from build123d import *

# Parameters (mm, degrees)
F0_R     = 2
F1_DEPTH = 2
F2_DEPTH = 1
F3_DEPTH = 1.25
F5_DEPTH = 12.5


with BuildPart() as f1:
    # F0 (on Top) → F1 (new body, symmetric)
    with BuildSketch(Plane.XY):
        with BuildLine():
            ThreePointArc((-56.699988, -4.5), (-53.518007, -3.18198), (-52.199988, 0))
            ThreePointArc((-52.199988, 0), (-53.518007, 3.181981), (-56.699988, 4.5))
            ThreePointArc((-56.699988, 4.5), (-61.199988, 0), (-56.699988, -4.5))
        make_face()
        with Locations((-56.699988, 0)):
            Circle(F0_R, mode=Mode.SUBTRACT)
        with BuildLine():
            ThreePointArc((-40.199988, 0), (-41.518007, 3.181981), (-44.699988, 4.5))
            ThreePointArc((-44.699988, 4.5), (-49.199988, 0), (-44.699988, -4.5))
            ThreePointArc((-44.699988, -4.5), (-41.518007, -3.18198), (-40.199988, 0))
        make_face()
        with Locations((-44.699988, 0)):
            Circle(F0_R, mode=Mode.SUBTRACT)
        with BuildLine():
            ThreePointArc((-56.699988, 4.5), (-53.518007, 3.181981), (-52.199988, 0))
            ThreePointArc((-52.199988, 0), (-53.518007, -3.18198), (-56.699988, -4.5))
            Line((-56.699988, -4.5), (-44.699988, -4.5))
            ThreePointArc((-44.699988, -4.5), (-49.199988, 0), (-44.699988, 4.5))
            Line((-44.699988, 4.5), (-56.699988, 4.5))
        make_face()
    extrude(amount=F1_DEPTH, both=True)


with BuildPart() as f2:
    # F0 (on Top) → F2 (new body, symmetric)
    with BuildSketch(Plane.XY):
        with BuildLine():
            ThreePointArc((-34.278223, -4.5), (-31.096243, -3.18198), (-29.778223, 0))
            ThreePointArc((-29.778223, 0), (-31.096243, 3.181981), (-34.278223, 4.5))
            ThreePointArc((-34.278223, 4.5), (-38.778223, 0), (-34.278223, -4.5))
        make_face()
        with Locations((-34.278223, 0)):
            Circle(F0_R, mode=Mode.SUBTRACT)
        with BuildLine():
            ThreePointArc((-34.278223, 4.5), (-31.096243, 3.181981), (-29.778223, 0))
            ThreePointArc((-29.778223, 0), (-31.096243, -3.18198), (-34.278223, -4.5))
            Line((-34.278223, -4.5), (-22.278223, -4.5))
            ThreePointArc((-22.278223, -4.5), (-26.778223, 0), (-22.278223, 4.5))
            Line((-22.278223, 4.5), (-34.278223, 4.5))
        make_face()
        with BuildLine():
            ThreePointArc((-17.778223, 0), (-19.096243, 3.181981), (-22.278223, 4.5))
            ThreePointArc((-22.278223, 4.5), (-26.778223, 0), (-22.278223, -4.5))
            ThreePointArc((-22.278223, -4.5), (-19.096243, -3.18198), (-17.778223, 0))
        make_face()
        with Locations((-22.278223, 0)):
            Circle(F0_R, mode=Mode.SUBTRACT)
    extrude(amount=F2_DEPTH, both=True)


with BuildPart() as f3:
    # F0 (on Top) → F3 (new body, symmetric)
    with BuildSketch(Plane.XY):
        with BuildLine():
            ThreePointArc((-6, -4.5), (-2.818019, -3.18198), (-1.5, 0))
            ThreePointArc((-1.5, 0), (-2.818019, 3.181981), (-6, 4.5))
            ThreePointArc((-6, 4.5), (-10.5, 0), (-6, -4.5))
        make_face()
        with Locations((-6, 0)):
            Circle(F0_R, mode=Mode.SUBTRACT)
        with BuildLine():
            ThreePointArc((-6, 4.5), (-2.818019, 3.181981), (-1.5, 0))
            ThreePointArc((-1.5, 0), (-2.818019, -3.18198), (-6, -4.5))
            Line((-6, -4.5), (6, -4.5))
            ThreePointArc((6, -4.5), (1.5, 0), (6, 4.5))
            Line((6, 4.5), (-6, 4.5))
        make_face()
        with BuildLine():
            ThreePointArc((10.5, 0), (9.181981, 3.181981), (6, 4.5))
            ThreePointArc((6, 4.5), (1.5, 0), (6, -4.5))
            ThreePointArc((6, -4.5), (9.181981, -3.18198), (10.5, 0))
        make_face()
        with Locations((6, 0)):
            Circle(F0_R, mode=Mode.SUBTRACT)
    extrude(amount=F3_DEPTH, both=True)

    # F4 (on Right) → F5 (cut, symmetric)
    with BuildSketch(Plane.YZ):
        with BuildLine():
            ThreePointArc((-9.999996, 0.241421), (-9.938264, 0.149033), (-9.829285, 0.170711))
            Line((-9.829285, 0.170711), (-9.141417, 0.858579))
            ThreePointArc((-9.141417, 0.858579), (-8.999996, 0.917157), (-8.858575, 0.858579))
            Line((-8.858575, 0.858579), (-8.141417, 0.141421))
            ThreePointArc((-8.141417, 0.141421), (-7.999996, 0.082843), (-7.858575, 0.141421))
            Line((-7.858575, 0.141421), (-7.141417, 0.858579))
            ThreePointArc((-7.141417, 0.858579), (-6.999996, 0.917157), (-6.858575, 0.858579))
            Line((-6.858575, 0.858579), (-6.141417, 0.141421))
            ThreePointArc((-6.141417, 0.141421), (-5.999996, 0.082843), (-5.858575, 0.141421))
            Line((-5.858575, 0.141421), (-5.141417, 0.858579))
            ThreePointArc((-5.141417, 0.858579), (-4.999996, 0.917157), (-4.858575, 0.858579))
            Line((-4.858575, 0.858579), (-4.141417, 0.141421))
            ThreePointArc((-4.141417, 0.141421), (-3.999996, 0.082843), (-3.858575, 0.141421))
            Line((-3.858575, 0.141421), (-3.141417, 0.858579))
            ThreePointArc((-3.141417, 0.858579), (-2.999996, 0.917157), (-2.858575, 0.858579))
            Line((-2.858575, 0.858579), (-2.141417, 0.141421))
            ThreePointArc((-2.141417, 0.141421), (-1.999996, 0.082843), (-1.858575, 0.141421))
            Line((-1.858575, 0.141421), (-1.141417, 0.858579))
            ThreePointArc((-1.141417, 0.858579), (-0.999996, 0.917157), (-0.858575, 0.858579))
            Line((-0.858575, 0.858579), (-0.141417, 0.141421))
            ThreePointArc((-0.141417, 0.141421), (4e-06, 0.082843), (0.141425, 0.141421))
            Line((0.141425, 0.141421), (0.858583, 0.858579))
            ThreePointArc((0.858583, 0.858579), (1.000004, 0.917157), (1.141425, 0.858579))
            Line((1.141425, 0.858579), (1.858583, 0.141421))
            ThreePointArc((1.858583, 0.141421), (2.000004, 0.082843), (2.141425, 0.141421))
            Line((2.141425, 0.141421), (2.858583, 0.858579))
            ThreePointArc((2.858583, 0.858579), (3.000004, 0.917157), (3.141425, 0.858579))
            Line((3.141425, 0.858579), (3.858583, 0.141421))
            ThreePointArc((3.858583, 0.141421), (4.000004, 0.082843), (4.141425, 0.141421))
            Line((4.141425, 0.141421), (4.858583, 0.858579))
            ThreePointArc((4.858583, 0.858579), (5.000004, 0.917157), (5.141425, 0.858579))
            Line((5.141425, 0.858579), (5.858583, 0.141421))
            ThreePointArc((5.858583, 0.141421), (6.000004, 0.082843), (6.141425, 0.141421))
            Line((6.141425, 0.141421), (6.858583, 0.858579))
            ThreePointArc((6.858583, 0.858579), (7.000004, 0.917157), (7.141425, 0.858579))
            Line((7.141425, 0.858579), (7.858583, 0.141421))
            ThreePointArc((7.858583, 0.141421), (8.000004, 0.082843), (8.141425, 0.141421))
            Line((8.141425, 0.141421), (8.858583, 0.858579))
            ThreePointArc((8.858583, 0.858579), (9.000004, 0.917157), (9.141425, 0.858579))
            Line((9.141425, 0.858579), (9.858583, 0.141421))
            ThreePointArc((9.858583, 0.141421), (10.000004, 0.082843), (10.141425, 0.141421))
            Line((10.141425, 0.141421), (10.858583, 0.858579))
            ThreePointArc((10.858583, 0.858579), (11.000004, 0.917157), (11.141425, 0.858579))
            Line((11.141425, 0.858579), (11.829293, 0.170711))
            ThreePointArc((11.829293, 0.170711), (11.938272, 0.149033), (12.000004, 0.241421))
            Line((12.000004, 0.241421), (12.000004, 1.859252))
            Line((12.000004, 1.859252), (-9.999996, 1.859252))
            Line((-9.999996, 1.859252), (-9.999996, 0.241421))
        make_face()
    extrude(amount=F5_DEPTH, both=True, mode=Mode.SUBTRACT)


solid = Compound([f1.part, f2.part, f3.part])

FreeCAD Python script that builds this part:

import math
import FreeCAD as App
import Part
import Sketcher

V = App.Vector
Q = App.Units.Quantity

doc = App.newDocument("Part")
params = doc.addObject("Spreadsheet::Sheet", "Params")
for row, (alias, value) in enumerate([
    ("sketch1_diameter", "4 mm"),
    ("sketch1_radius", "4.5 mm"),
    ("sketch1_width", "12 mm"),
    ("pad1_length", "4 mm"),
    ("sketch2_diameter", "4 mm"),
    ("sketch2_radius", "4.5 mm"),
    ("sketch2_width", "12 mm"),
    ("pad2_length", "2 mm"),
    ("sketch3_diameter", "4 mm"),
    ("sketch3_radius", "4.5 mm"),
    ("sketch3_width", "12 mm"),
    ("pad3_length", "2.5 mm"),
    ("sketch4_radius", "0.1 mm"),
    ("sketch4_radius2", "0.200001 mm"),
    ("sketch4_radius3", "0.200001 mm"),
    ("sketch4_radius4", "0.200001 mm"),
    ("sketch4_radius5", "0.200001 mm"),
    ("pocket1_length", "25 mm"),
], start=1):
    params.set(f"A{row}", alias)
    params.set(f"B{row}", "=" + value)
    params.setAlias(f"B{row}", alias)

body = doc.addObject("PartDesign::Body", "Body")

# Sketch on XY plane
sketch1 = body.newObject("Sketcher::SketchObject", "Sketch")
sketch1.AttachmentSupport = (doc.getObject("XY_Plane"), [""])
sketch1.MapMode = "FlatFace"
sketch1.addGeometry([
    Part.ArcOfCircle(Part.Circle(V(-56.699988, 0, 0), V(0, 0, 1), 4.5), math.radians(90), math.radians(270)),  # 0
    Part.LineSegment(V(-56.699988, -4.5, 0), V(-44.699988, -4.5, 0)),  # 1
    Part.ArcOfCircle(Part.Circle(V(-44.699988, 0, 0), V(0, 0, 1), 4.5), math.radians(-89.999999), math.radians(-0.000001)),  # 2
    Part.ArcOfCircle(Part.Circle(V(-44.699986, 0.000002, 0), V(0, 0, 1), 4.499998), math.radians(-0.000021), math.radians(90.000021)),  # 3
    Part.LineSegment(V(-44.699988, 4.5, 0), V(-56.699988, 4.5, 0)),  # 4
    Part.Circle(V(-56.699988, 0, 0), V(0, 0, 1), 2),  # 5
    Part.Circle(V(-44.699988, 0, 0), V(0, 0, 1), 2),  # 6
], False)
sketch1.addConstraint([
    Sketcher.Constraint("Tangent", 0, 2, 1, 1),
    Sketcher.Constraint("Tangent", 1, 2, 2, 1),
    Sketcher.Constraint("Tangent", 2, 2, 3, 1),
    Sketcher.Constraint("Tangent", 3, 2, 4, 1),
    Sketcher.Constraint("Tangent", 4, 2, 0, 1),
    Sketcher.Constraint("Horizontal", 1),
    Sketcher.Constraint("Horizontal", 4),
    Sketcher.Constraint("Coincident", 5, 3, 0, 3),
    Sketcher.Constraint("Coincident", 6, 3, 2, 3),
    Sketcher.Constraint("Equal", 0, 2),
    Sketcher.Constraint("Equal", 5, 6),
    Sketcher.Constraint("PointOnObject", 0, 3, -1),
    Sketcher.Constraint("PointOnObject", 2, 2, -1),
    Sketcher.Constraint("Diameter", 5, Q("4 mm")),
    Sketcher.Constraint("Radius", 0, Q("4.5 mm")),
    Sketcher.Constraint("DistanceX", 1, 1, 1, 2, Q("12 mm")),
    Sketcher.Constraint("DistanceX", 2, 3, -1, 1, Q("44.699988 mm")),
])
sketch1.setExpression("Constraints[13]", "Params.sketch1_diameter")
sketch1.setExpression("Constraints[14]", "Params.sketch1_radius")
sketch1.setExpression("Constraints[15]", "Params.sketch1_width")
pad1 = body.newObject("PartDesign::Pad", "Pad")
pad1.Profile = sketch1
pad1.setExpression("Length", "Params.pad1_length")
pad1.Midplane = True
body2 = doc.addObject("PartDesign::Body", "Body001")

# Sketch on XY plane
sketch2 = body2.newObject("Sketcher::SketchObject", "Sketch001")
sketch2.AttachmentSupport = (doc.getObject("XY_Plane001"), [""])
sketch2.MapMode = "FlatFace"
sketch2.addGeometry([
    Part.ArcOfCircle(Part.Circle(V(-34.278223, 0, 0), V(0, 0, 1), 4.5), math.radians(90), math.radians(270)),  # 0
    Part.LineSegment(V(-34.278223, -4.5, 0), V(-22.278223, -4.5, 0)),  # 1
    Part.ArcOfCircle(Part.Circle(V(-22.278225, 0.000002, 0), V(0, 0, 1), 4.500002), math.radians(-89.999978), math.radians(-0.000022)),  # 2
    Part.ArcOfCircle(Part.Circle(V(-22.278223, 0, 0), V(0, 0, 1), 4.5), math.radians(0.000001), math.radians(89.999999)),  # 3
    Part.LineSegment(V(-22.278223, 4.5, 0), V(-34.278223, 4.5, 0)),  # 4
    Part.Circle(V(-34.278223, 0, 0), V(0, 0, 1), 2),  # 5
    Part.Circle(V(-22.278223, 0, 0), V(0, 0, 1), 2),  # 6
], False)
sketch2.addConstraint([
    Sketcher.Constraint("Tangent", 0, 2, 1, 1),
    Sketcher.Constraint("Tangent", 1, 2, 2, 1),
    Sketcher.Constraint("Tangent", 2, 2, 3, 1),
    Sketcher.Constraint("Tangent", 3, 2, 4, 1),
    Sketcher.Constraint("Tangent", 4, 2, 0, 1),
    Sketcher.Constraint("Horizontal", 1),
    Sketcher.Constraint("Horizontal", 4),
    Sketcher.Constraint("Coincident", 5, 3, 0, 3),
    Sketcher.Constraint("Coincident", 6, 3, 2, 3),
    Sketcher.Constraint("Equal", 0, 2),
    Sketcher.Constraint("Equal", 5, 6),
    Sketcher.Constraint("PointOnObject", 0, 3, -1),
    Sketcher.Constraint("PointOnObject", 2, 2, -1),
    Sketcher.Constraint("Diameter", 5, Q("4 mm")),
    Sketcher.Constraint("Radius", 0, Q("4.5 mm")),
    Sketcher.Constraint("DistanceX", 1, 1, 1, 2, Q("12 mm")),
    Sketcher.Constraint("DistanceX", 0, 3, -1, 1, Q("34.278223 mm")),
])
sketch2.setExpression("Constraints[13]", "Params.sketch2_diameter")
sketch2.setExpression("Constraints[14]", "Params.sketch2_radius")
sketch2.setExpression("Constraints[15]", "Params.sketch2_width")
pad2 = body2.newObject("PartDesign::Pad", "Pad001")
pad2.Profile = sketch2
pad2.setExpression("Length", "Params.pad2_length")
pad2.Midplane = True
body3 = doc.addObject("PartDesign::Body", "Body002")

# Sketch on XY plane
sketch3 = body3.newObject("Sketcher::SketchObject", "Sketch002")
sketch3.AttachmentSupport = (doc.getObject("XY_Plane002"), [""])
sketch3.MapMode = "FlatFace"
sketch3.addGeometry([
    Part.ArcOfCircle(Part.Circle(V(-6, 0, 0), V(0, 0, 1), 4.5), math.radians(90), math.radians(270)),  # 0
    Part.LineSegment(V(-6, -4.5, 0), V(6, -4.5, 0)),  # 1
    Part.ArcOfCircle(Part.Circle(V(6, 0, 0), V(0, 0, 1), 4.5), math.radians(-89.999999), math.radians(-0.000001)),  # 2
    Part.ArcOfCircle(Part.Circle(V(6.000002, 0.000002, 0), V(0, 0, 1), 4.499998), math.radians(-0.000021), math.radians(90.000021)),  # 3
    Part.LineSegment(V(6, 4.5, 0), V(-6, 4.5, 0)),  # 4
    Part.Circle(V(-6, 0, 0), V(0, 0, 1), 2),  # 5
    Part.Circle(V(6, 0, 0), V(0, 0, 1), 2),  # 6
], False)
sketch3.addConstraint([
    Sketcher.Constraint("Tangent", 0, 2, 1, 1),
    Sketcher.Constraint("Tangent", 1, 2, 2, 1),
    Sketcher.Constraint("Tangent", 2, 2, 3, 1),
    Sketcher.Constraint("Tangent", 3, 2, 4, 1),
    Sketcher.Constraint("Tangent", 4, 2, 0, 1),
    Sketcher.Constraint("Horizontal", 1),
    Sketcher.Constraint("Horizontal", 4),
    Sketcher.Constraint("Coincident", 5, 3, 0, 3),
    Sketcher.Constraint("Coincident", 6, 3, 2, 3),
    Sketcher.Constraint("Equal", 0, 2),
    Sketcher.Constraint("Equal", 5, 6),
    Sketcher.Constraint("Symmetric", 0, 3, 2, 3, -1, 1),
    Sketcher.Constraint("PointOnObject", 2, 2, -1),
    Sketcher.Constraint("Diameter", 5, Q("4 mm")),
    Sketcher.Constraint("Radius", 0, Q("4.5 mm")),
    Sketcher.Constraint("DistanceX", 1, 1, 1, 2, Q("12 mm")),
])
sketch3.setExpression("Constraints[13]", "Params.sketch3_diameter")
sketch3.setExpression("Constraints[14]", "Params.sketch3_radius")
sketch3.setExpression("Constraints[15]", "Params.sketch3_width")
pad3 = body3.newObject("PartDesign::Pad", "Pad002")
pad3.Profile = sketch3
pad3.setExpression("Length", "Params.pad3_length")
pad3.Midplane = True

# Sketch on YZ plane
sketch4 = body3.newObject("Sketcher::SketchObject", "Sketch003")
sketch4.AttachmentSupport = (doc.getObject("YZ_Plane002"), [""])
sketch4.MapMode = "FlatFace"
sketch4.addGeometry([
    Part.ArcOfCircle(Part.Circle(V(-9.899996, 0.241421, 0), V(0, 0, 1), 0.1), math.radians(179.999998), math.radians(315.000467)),  # 0
    Part.LineSegment(V(-9.829285, 0.170711, 0), V(-9.141417, 0.858579, 0)),  # 1
    Part.ArcOfCircle(Part.Circle(V(-8.999996, 0.717156, 0), V(0, 0, 1), 0.200001), math.radians(45.000343), math.radians(134.999657)),  # 2
    Part.LineSegment(V(-8.858575, 0.858579, 0), V(-8.141417, 0.141421, 0)),  # 3
    Part.ArcOfCircle(Part.Circle(V(-7.999996, 0.282844, 0), V(0, 0, 1), 0.200001), math.radians(-134.999657), math.radians(-45.000343)),  # 4
    Part.LineSegment(V(-7.858575, 0.141421, 0), V(-7.141417, 0.858579, 0)),  # 5
    Part.ArcOfCircle(Part.Circle(V(-6.999996, 0.717156, 0), V(0, 0, 1), 0.200001), math.radians(45.000343), math.radians(134.999657)),  # 6
    Part.LineSegment(V(-6.858575, 0.858579, 0), V(-6.141417, 0.141421, 0)),  # 7
    Part.ArcOfCircle(Part.Circle(V(-5.999996, 0.282844, 0), V(0, 0, 1), 0.200001), math.radians(-134.999657), math.radians(-45.000343)),  # 8
    Part.LineSegment(V(-5.858575, 0.141421, 0), V(-5.141417, 0.858579, 0)),  # 9
    Part.ArcOfCircle(Part.Circle(V(-4.999996, 0.717156, 0), V(0, 0, 1), 0.200001), math.radians(45.000343), math.radians(134.999657)),  # 10
    Part.LineSegment(V(-4.858575, 0.858579, 0), V(-4.141417, 0.141421, 0)),  # 11
    Part.ArcOfCircle(Part.Circle(V(-3.999996, 0.282844, 0), V(0, 0, 1), 0.200001), math.radians(-134.999657), math.radians(-45.000343)),  # 12
    Part.LineSegment(V(-3.858575, 0.141421, 0), V(-3.141417, 0.858579, 0)),  # 13
    Part.ArcOfCircle(Part.Circle(V(-2.999996, 0.717156, 0), V(0, 0, 1), 0.200001), math.radians(45.000343), math.radians(134.999657)),  # 14
    Part.LineSegment(V(-2.858575, 0.858579, 0), V(-2.141417, 0.141421, 0)),  # 15
    Part.ArcOfCircle(Part.Circle(V(-1.999996, 0.282844, 0), V(0, 0, 1), 0.200001), math.radians(-134.999657), math.radians(-45.000343)),  # 16
    Part.LineSegment(V(-1.858575, 0.141421, 0), V(-1.141417, 0.858579, 0)),  # 17
    Part.ArcOfCircle(Part.Circle(V(-0.999996, 0.717156, 0), V(0, 0, 1), 0.200001), math.radians(45.000343), math.radians(134.999657)),  # 18
    Part.LineSegment(V(-0.858575, 0.858579, 0), V(-0.141417, 0.141421, 0)),  # 19
    Part.ArcOfCircle(Part.Circle(V(0.000004, 0.282844, 0), V(0, 0, 1), 0.200001), math.radians(-134.999657), math.radians(-45.000343)),  # 20
    Part.LineSegment(V(0.141425, 0.141421, 0), V(0.858583, 0.858579, 0)),  # 21
    Part.ArcOfCircle(Part.Circle(V(1.000004, 0.717156, 0), V(0, 0, 1), 0.200001), math.radians(45.000343), math.radians(134.999657)),  # 22
    Part.LineSegment(V(1.141425, 0.858579, 0), V(1.858583, 0.141421, 0)),  # 23
    Part.ArcOfCircle(Part.Circle(V(2.000004, 0.282844, 0), V(0, 0, 1), 0.200001), math.radians(-134.999657), math.radians(-45.000343)),  # 24
    Part.LineSegment(V(2.141425, 0.141421, 0), V(2.858583, 0.858579, 0)),  # 25
    Part.ArcOfCircle(Part.Circle(V(3.000004, 0.717156, 0), V(0, 0, 1), 0.200001), math.radians(45.000343), math.radians(134.999657)),  # 26
    Part.LineSegment(V(3.141425, 0.858579, 0), V(3.858583, 0.141421, 0)),  # 27
    Part.ArcOfCircle(Part.Circle(V(4.000004, 0.282844, 0), V(0, 0, 1), 0.200001), math.radians(-134.999657), math.radians(-45.000343)),  # 28
    Part.LineSegment(V(4.141425, 0.141421, 0), V(4.858583, 0.858579, 0)),  # 29
    Part.ArcOfCircle(Part.Circle(V(5.000004, 0.717156, 0), V(0, 0, 1), 0.200001), math.radians(45.000343), math.radians(134.999657)),  # 30
    Part.LineSegment(V(5.141425, 0.858579, 0), V(5.858583, 0.141421, 0)),  # 31
    Part.ArcOfCircle(Part.Circle(V(6.000004, 0.282844, 0), V(0, 0, 1), 0.200001), math.radians(-134.999657), math.radians(-45.000343)),  # 32
    Part.LineSegment(V(6.141425, 0.141421, 0), V(6.858583, 0.858579, 0)),  # 33
    Part.ArcOfCircle(Part.Circle(V(7.000004, 0.717156, 0), V(0, 0, 1), 0.200001), math.radians(45.000343), math.radians(134.999657)),  # 34
    Part.LineSegment(V(7.141425, 0.858579, 0), V(7.858583, 0.141421, 0)),  # 35
    Part.ArcOfCircle(Part.Circle(V(8.000004, 0.282844, 0), V(0, 0, 1), 0.200001), math.radians(-134.999657), math.radians(-45.000343)),  # 36
    Part.LineSegment(V(8.141425, 0.141421, 0), V(8.858583, 0.858579, 0)),  # 37
    Part.ArcOfCircle(Part.Circle(V(9.000004, 0.717156, 0), V(0, 0, 1), 0.200001), math.radians(45.000343), math.radians(134.999657)),  # 38
    Part.LineSegment(V(9.141425, 0.858579, 0), V(9.858583, 0.141421, 0)),  # 39
    Part.ArcOfCircle(Part.Circle(V(10.000004, 0.282844, 0), V(0, 0, 1), 0.200001), math.radians(-134.999657), math.radians(-45.000343)),  # 40
    Part.LineSegment(V(10.141425, 0.141421, 0), V(10.858583, 0.858579, 0)),  # 41
    Part.ArcOfCircle(Part.Circle(V(11.000004, 0.717156, 0), V(0, 0, 1), 0.200001), math.radians(45.000343), math.radians(134.999657)),  # 42
    Part.LineSegment(V(11.141425, 0.858579, 0), V(11.829293, 0.170711, 0)),  # 43
    Part.ArcOfCircle(Part.Circle(V(11.900004, 0.241421, 0), V(0, 0, 1), 0.1), math.radians(-135.000467), math.radians(0.000002)),  # 44
    Part.LineSegment(V(12.000004, 0.241421, 0), V(12.000004, 1.859252, 0)),  # 45
    Part.LineSegment(V(12.000004, 1.859252, 0), V(-9.999996, 1.859252, 0)),  # 46
    Part.LineSegment(V(-9.999996, 1.859252, 0), V(-9.999996, 0.241421, 0)),  # 47
], False)
sketch4.addConstraint([
    Sketcher.Constraint("Coincident", 0, 2, 1, 1),
    Sketcher.Constraint("Coincident", 1, 2, 2, 2),
    Sketcher.Constraint("Coincident", 2, 1, 3, 1),
    Sketcher.Constraint("Coincident", 3, 2, 4, 1),
    Sketcher.Constraint("Coincident", 4, 2, 5, 1),
    Sketcher.Constraint("Coincident", 5, 2, 6, 2),
    Sketcher.Constraint("Coincident", 6, 1, 7, 1),
    Sketcher.Constraint("Coincident", 7, 2, 8, 1),
    Sketcher.Constraint("Coincident", 8, 2, 9, 1),
    Sketcher.Constraint("Coincident", 9, 2, 10, 2),
    Sketcher.Constraint("Coincident", 10, 1, 11, 1),
    Sketcher.Constraint("Coincident", 11, 2, 12, 1),
    Sketcher.Constraint("Coincident", 12, 2, 13, 1),
    Sketcher.Constraint("Coincident", 13, 2, 14, 2),
    Sketcher.Constraint("Coincident", 14, 1, 15, 1),
    Sketcher.Constraint("Coincident", 15, 2, 16, 1),
    Sketcher.Constraint("Coincident", 16, 2, 17, 1),
    Sketcher.Constraint("Coincident", 17, 2, 18, 2),
    Sketcher.Constraint("Coincident", 18, 1, 19, 1),
    Sketcher.Constraint("Coincident", 19, 2, 20, 1),
    Sketcher.Constraint("Coincident", 20, 2, 21, 1),
    Sketcher.Constraint("Coincident", 21, 2, 22, 2),
    Sketcher.Constraint("Coincident", 22, 1, 23, 1),
    Sketcher.Constraint("Coincident", 23, 2, 24, 1),
    Sketcher.Constraint("Coincident", 24, 2, 25, 1),
    Sketcher.Constraint("Coincident", 25, 2, 26, 2),
    Sketcher.Constraint("Coincident", 26, 1, 27, 1),
    Sketcher.Constraint("Coincident", 27, 2, 28, 1),
    Sketcher.Constraint("Coincident", 28, 2, 29, 1),
    Sketcher.Constraint("Coincident", 29, 2, 30, 2),
    Sketcher.Constraint("Coincident", 30, 1, 31, 1),
    Sketcher.Constraint("Coincident", 31, 2, 32, 1),
    Sketcher.Constraint("Coincident", 32, 2, 33, 1),
    Sketcher.Constraint("Coincident", 33, 2, 34, 2),
    Sketcher.Constraint("Coincident", 34, 1, 35, 1),
    Sketcher.Constraint("Coincident", 35, 2, 36, 1),
    Sketcher.Constraint("Coincident", 36, 2, 37, 1),
    Sketcher.Constraint("Coincident", 37, 2, 38, 2),
    Sketcher.Constraint("Coincident", 38, 1, 39, 1),
    Sketcher.Constraint("Coincident", 39, 2, 40, 1),
    Sketcher.Constraint("Coincident", 40, 2, 41, 1),
    Sketcher.Constraint("Coincident", 41, 2, 42, 2),
    Sketcher.Constraint("Coincident", 42, 1, 43, 1),
    Sketcher.Constraint("Coincident", 43, 2, 44, 1),
    Sketcher.Constraint("Coincident", 44, 2, 45, 1),
    Sketcher.Constraint("Coincident", 45, 2, 46, 1),
    Sketcher.Constraint("Coincident", 46, 2, 47, 1),
    Sketcher.Constraint("Coincident", 47, 2, 0, 1),
    Sketcher.Constraint("Vertical", 45),
    Sketcher.Constraint("Horizontal", 46),
    Sketcher.Constraint("Vertical", 47),
    Sketcher.Constraint("Radius", 0, Q("0.1 mm")),
    Sketcher.Constraint("Radius", 2, Q("0.200001 mm")),
    Sketcher.Constraint("Radius", 4, Q("0.200001 mm")),
    Sketcher.Constraint("Radius", 6, Q("0.200001 mm")),
    Sketcher.Constraint("Radius", 8, Q("0.200001 mm")),
    Sketcher.Constraint("Radius", 10, Q("0.200001 mm")),
    Sketcher.Constraint("Radius", 12, Q("0.200001 mm")),
    Sketcher.Constraint("Radius", 14, Q("0.200001 mm")),
    Sketcher.Constraint("Radius", 16, Q("0.200001 mm")),
    Sketcher.Constraint("Radius", 18, Q("0.200001 mm")),
    Sketcher.Constraint("Radius", 20, Q("0.200001 mm")),
    Sketcher.Constraint("Radius", 22, Q("0.200001 mm")),
    Sketcher.Constraint("Radius", 24, Q("0.200001 mm")),
    Sketcher.Constraint("Radius", 26, Q("0.200001 mm")),
    Sketcher.Constraint("Radius", 28, Q("0.200001 mm")),
    Sketcher.Constraint("Radius", 30, Q("0.200001 mm")),
    Sketcher.Constraint("Radius", 32, Q("0.200001 mm")),
    Sketcher.Constraint("Radius", 34, Q("0.200001 mm")),
    Sketcher.Constraint("Radius", 36, Q("0.200001 mm")),
    Sketcher.Constraint("Radius", 38, Q("0.200001 mm")),
    Sketcher.Constraint("Radius", 40, Q("0.200001 mm")),
    Sketcher.Constraint("Radius", 42, Q("0.200001 mm")),
    Sketcher.Constraint("Radius", 44, Q("0.1 mm")),
    Sketcher.Constraint("DistanceX", 46, 2, 46, 1, Q("22 mm")),
    Sketcher.Constraint("DistanceY", 45, 1, 45, 2, Q("1.617831 mm")),
    Sketcher.Constraint("DistanceY", 47, 2, 47, 1, Q("1.617831 mm")),
    Sketcher.Constraint("DistanceY", -1, 1, 0, 3, Q("0.241421 mm")),
    Sketcher.Constraint("DistanceY", -1, 1, 44, 3, Q("0.241421 mm")),
    Sketcher.Constraint("DistanceY", -1, 1, 0, 2, Q("0.170711 mm")),
    Sketcher.Constraint("DistanceY", -1, 1, 1, 2, Q("0.858579 mm")),
    Sketcher.Constraint("DistanceY", -1, 1, 2, 1, Q("0.858579 mm")),
    Sketcher.Constraint("DistanceY", -1, 1, 3, 2, Q("0.141421 mm")),
    Sketcher.Constraint("DistanceY", -1, 1, 4, 2, Q("0.141421 mm")),
    Sketcher.Constraint("DistanceY", -1, 1, 5, 2, Q("0.858579 mm")),
    Sketcher.Constraint("DistanceY", -1, 1, 6, 1, Q("0.858579 mm")),
    Sketcher.Constraint("DistanceY", -1, 1, 7, 2, Q("0.141421 mm")),
    Sketcher.Constraint("DistanceY", -1, 1, 8, 2, Q("0.141421 mm")),
    Sketcher.Constraint("DistanceY", -1, 1, 9, 2, Q("0.858579 mm")),
    Sketcher.Constraint("DistanceY", -1, 1, 10, 1, Q("0.858579 mm")),
    Sketcher.Constraint("DistanceY", -1, 1, 11, 2, Q("0.141421 mm")),
    Sketcher.Constraint("DistanceY", -1, 1, 12, 2, Q("0.141421 mm")),
    Sketcher.Constraint("DistanceY", -1, 1, 13, 2, Q("0.858579 mm")),
    Sketcher.Constraint("DistanceY", -1, 1, 14, 1, Q("0.858579 mm")),
    Sketcher.Constraint("DistanceY", -1, 1, 15, 2, Q("0.141421 mm")),
    Sketcher.Constraint("DistanceY", -1, 1, 16, 2, Q("0.141421 mm")),
    Sketcher.Constraint("DistanceY", -1, 1, 17, 2, Q("0.858579 mm")),
    Sketcher.Constraint("DistanceY", -1, 1, 18, 1, Q("0.858579 mm")),
    Sketcher.Constraint("DistanceY", -1, 1, 19, 2, Q("0.141421 mm")),
    Sketcher.Constraint("DistanceY", -1, 1, 20, 2, Q("0.141421 mm")),
    Sketcher.Constraint("DistanceY", -1, 1, 21, 2, Q("0.858579 mm")),
    Sketcher.Constraint("DistanceY", -1, 1, 22, 1, Q("0.858579 mm")),
    Sketcher.Constraint("DistanceY", -1, 1, 23, 2, Q("0.141421 mm")),
    Sketcher.Constraint("DistanceY", -1, 1, 24, 2, Q("0.141421 mm")),
    Sketcher.Constraint("DistanceY", -1, 1, 25, 2, Q("0.858579 mm")),
    Sketcher.Constraint("DistanceY", -1, 1, 26, 1, Q("0.858579 mm")),
    Sketcher.Constraint("DistanceY", -1, 1, 27, 2, Q("0.141421 mm")),
    Sketcher.Constraint("DistanceY", -1, 1, 28, 2, Q("0.141421 mm")),
    Sketcher.Constraint("DistanceY", -1, 1, 29, 2, Q("0.858579 mm")),
    Sketcher.Constraint("DistanceY", -1, 1, 30, 1, Q("0.858579 mm")),
    Sketcher.Constraint("DistanceY", -1, 1, 31, 2, Q("0.141421 mm")),
    Sketcher.Constraint("DistanceY", -1, 1, 32, 2, Q("0.141421 mm")),
    Sketcher.Constraint("DistanceY", -1, 1, 33, 2, Q("0.858579 mm")),
    Sketcher.Constraint("DistanceY", -1, 1, 34, 1, Q("0.858579 mm")),
    Sketcher.Constraint("DistanceY", -1, 1, 35, 2, Q("0.141421 mm")),
    Sketcher.Constraint("DistanceY", -1, 1, 36, 2, Q("0.141421 mm")),
    Sketcher.Constraint("DistanceY", -1, 1, 37, 2, Q("0.858579 mm")),
    Sketcher.Constraint("DistanceY", -1, 1, 38, 1, Q("0.858579 mm")),
    Sketcher.Constraint("DistanceY", -1, 1, 39, 2, Q("0.141421 mm")),
    Sketcher.Constraint("DistanceY", -1, 1, 40, 2, Q("0.141421 mm")),
    Sketcher.Constraint("DistanceY", -1, 1, 41, 2, Q("0.858579 mm")),
    Sketcher.Constraint("DistanceY", -1, 1, 42, 1, Q("0.858579 mm")),
    Sketcher.Constraint("DistanceY", -1, 1, 43, 2, Q("0.170711 mm")),
    Sketcher.Constraint("DistanceY", -1, 1, 44, 2, Q("0.241421 mm")),
    Sketcher.Constraint("Distance", 1, Q("0.972792 mm")),
    Sketcher.Constraint("Distance", 3, Q("1.014215 mm")),
    Sketcher.Constraint("Distance", 5, Q("1.014215 mm")),
    Sketcher.Constraint("Distance", 7, Q("1.014215 mm")),
    Sketcher.Constraint("Distance", 9, Q("1.014215 mm")),
    Sketcher.Constraint("Distance", 11, Q("1.014215 mm")),
    Sketcher.Constraint("Distance", 13, Q("1.014215 mm")),
    Sketcher.Constraint("Distance", 15, Q("1.014215 mm")),
    Sketcher.Constraint("Distance", 17, Q("1.014215 mm")),
    Sketcher.Constraint("Distance", 19, Q("1.014215 mm")),
    Sketcher.Constraint("Distance", 21, Q("1.014215 mm")),
    Sketcher.Constraint("Distance", 23, Q("1.014215 mm")),
    Sketcher.Constraint("Distance", 25, Q("1.014215 mm")),
    Sketcher.Constraint("Distance", 27, Q("1.014215 mm")),
    Sketcher.Constraint("Distance", 29, Q("1.014215 mm")),
    Sketcher.Constraint("Distance", 31, Q("1.014215 mm")),
    Sketcher.Constraint("Distance", 33, Q("1.014215 mm")),
    Sketcher.Constraint("Distance", 35, Q("1.014215 mm")),
    Sketcher.Constraint("Distance", 37, Q("1.014215 mm")),
    Sketcher.Constraint("Distance", 39, Q("1.014215 mm")),
    Sketcher.Constraint("Distance", 41, Q("1.014215 mm")),
    Sketcher.Constraint("Distance", 43, Q("0.972792 mm")),
    Sketcher.Constraint("DistanceX", 0, 3, -1, 1, Q("9.899996 mm")),
    Sketcher.Constraint("DistanceX", 2, 3, -1, 1, Q("8.999996 mm")),
    Sketcher.Constraint("DistanceX", 4, 3, -1, 1, Q("7.999996 mm")),
    Sketcher.Constraint("DistanceX", 6, 3, -1, 1, Q("6.999996 mm")),
    Sketcher.Constraint("DistanceX", 8, 3, -1, 1, Q("5.999996 mm")),
    Sketcher.Constraint("DistanceX", 10, 3, -1, 1, Q("4.999996 mm")),
    Sketcher.Constraint("DistanceX", 12, 3, -1, 1, Q("3.999996 mm")),
    Sketcher.Constraint("DistanceX", 14, 3, -1, 1, Q("2.999996 mm")),
    Sketcher.Constraint("DistanceX", 16, 3, -1, 1, Q("1.999996 mm")),
    Sketcher.Constraint("DistanceX", 18, 3, -1, 1, Q("0.999996 mm")),
    Sketcher.Constraint("DistanceY", -1, 1, 20, 3, Q("0.282844 mm")),
    Sketcher.Constraint("DistanceX", -1, 1, 22, 3, Q("1.000004 mm")),
    Sketcher.Constraint("DistanceX", -1, 1, 24, 3, Q("2.000004 mm")),
    Sketcher.Constraint("DistanceX", -1, 1, 26, 3, Q("3.000004 mm")),
    Sketcher.Constraint("DistanceX", -1, 1, 28, 3, Q("4.000004 mm")),
    Sketcher.Constraint("DistanceX", -1, 1, 30, 3, Q("5.000004 mm")),
    Sketcher.Constraint("DistanceX", -1, 1, 32, 3, Q("6.000004 mm")),
    Sketcher.Constraint("DistanceX", -1, 1, 34, 3, Q("7.000004 mm")),
    Sketcher.Constraint("DistanceX", -1, 1, 36, 3, Q("8.000004 mm")),
    Sketcher.Constraint("DistanceX", -1, 1, 38, 3, Q("9.000004 mm")),
    Sketcher.Constraint("DistanceX", -1, 1, 40, 3, Q("10.000004 mm")),
])
sketch4.setExpression("Constraints[51]", "Params.sketch4_radius")
sketch4.setExpression("Constraints[52]", "Params.sketch4_radius2")
sketch4.setExpression("Constraints[53]", "Params.sketch4_radius3")
sketch4.setExpression("Constraints[54]", "Params.sketch4_radius4")
sketch4.setExpression("Constraints[55]", "Params.sketch4_radius5")
pocket1 = body3.newObject("PartDesign::Pocket", "Pocket")
pocket1.Profile = sketch4
pocket1.setExpression("Length", "Params.pocket1_length")
pocket1.Midplane = True

doc.recompute()
